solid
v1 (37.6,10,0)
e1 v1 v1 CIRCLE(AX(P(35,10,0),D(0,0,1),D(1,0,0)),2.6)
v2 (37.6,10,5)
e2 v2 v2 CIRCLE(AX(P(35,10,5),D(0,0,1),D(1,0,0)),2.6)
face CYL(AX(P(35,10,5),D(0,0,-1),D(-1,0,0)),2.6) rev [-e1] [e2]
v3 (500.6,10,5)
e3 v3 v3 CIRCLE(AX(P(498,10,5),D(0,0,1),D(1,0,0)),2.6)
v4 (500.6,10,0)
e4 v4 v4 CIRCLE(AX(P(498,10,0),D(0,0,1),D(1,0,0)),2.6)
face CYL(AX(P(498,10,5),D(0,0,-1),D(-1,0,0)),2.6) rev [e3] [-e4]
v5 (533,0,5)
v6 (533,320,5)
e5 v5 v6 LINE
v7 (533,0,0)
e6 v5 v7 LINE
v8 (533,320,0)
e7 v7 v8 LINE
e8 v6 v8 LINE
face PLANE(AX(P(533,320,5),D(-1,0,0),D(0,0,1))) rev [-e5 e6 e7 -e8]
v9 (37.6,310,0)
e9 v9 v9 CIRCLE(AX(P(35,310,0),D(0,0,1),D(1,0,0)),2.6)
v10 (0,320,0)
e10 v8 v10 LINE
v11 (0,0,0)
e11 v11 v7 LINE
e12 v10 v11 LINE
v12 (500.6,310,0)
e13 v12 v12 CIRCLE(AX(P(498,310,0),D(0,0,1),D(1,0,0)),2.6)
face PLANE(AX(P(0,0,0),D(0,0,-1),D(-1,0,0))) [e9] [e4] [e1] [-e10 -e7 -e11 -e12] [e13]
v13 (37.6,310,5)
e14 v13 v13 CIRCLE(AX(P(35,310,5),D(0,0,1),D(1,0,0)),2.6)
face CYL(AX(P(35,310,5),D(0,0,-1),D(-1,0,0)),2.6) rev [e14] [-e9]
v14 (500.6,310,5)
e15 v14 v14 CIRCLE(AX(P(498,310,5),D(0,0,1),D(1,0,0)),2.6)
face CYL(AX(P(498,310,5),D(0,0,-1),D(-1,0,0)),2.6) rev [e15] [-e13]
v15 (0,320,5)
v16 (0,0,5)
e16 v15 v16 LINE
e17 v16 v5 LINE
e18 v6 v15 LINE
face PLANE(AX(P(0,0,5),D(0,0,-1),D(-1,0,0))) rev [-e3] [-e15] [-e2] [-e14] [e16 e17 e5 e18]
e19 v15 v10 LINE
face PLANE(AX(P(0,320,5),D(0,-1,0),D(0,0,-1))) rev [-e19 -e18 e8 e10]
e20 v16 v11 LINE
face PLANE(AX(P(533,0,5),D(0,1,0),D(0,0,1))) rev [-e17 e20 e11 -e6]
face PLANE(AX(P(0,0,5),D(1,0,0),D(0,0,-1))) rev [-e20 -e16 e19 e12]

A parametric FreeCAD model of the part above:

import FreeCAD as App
import Part
import Sketcher
Q = App.Units.Quantity

doc = App.newDocument("Part")
params = doc.addObject("Spreadsheet::Sheet", "Params")
for row, (alias, value) in enumerate([
    ("sketch1_diameter", "5.2 mm"),
    ("sketch1_width", "533 mm"),
    ("sketch1_height", "320 mm"),
    ("pad1_length", "5 mm"),
], start=1):
    params.set(f"A{row}", alias)
    params.set(f"B{row}", "=" + value)
    params.setAlias(f"B{row}", alias)

body = doc.addObject("PartDesign::Body", "Body")

# Sketch on XY plane
sketch1 = body.newObject("Sketcher::SketchObject", "Sketch")
sketch1.AttachmentSupport = (doc.getObject("XY_Plane"), [""])
sketch1.MapMode = "FlatFace"
sketch1.addGeometry([
    Part.LineSegment(App.Vector(0, 320, 0), App.Vector(0, 0, 0)),  # 0
    Part.LineSegment(App.Vector(0, 0, 0), App.Vector(533, 0, 0)),  # 1
    Part.LineSegment(App.Vector(533, 0, 0), App.Vector(533, 320, 0)),  # 2
    Part.LineSegment(App.Vector(533, 320, 0), App.Vector(0, 320, 0)),  # 3
    Part.Circle(App.Vector(35, 10, 0), App.Vector(0, 0, 1), 2.6),  # 4
    Part.Circle(App.Vector(498, 10, 0), App.Vector(0, 0, 1), 2.6),  # 5
    Part.Circle(App.Vector(35, 310, 0), App.Vector(0, 0, 1), 2.6),  # 6
    Part.Circle(App.Vector(498, 310, 0), App.Vector(0, 0, 1), 2.6),  # 7
], False)
sketch1.addConstraint([
    Sketcher.Constraint("Coincident", 0, 2, 1, 1),
    Sketcher.Constraint("Coincident", 1, 2, 2, 1),
    Sketcher.Constraint("Coincident", 2, 2, 3, 1),
    Sketcher.Constraint("Coincident", 3, 2, 0, 1),
    Sketcher.Constraint("Vertical", 0),
    Sketcher.Constraint("Horizontal", 1),
    Sketcher.Constraint("Vertical", 2),
    Sketcher.Constraint("Horizontal", 3),
    Sketcher.Constraint("Coincident", 0, 2, -1, 1),
    Sketcher.Constraint("Equal", 4, 5),
    Sketcher.Constraint("Equal", 5, 6),
    Sketcher.Constraint("Equal", 6, 7),
    Sketcher.Constraint("Horizontal", 4, 3, 5, 3),
    Sketcher.Constraint("Horizontal", 6, 3, 7, 3),
    Sketcher.Constraint("Vertical", 4, 3, 6, 3),
    Sketcher.Constraint("Vertical", 5, 3, 7, 3),
    Sketcher.Constraint("Diameter", 4, Q("5.2 mm")),
    Sketcher.Constraint("DistanceX", 1, 1, 1, 2, Q("533 mm")),
    Sketcher.Constraint("DistanceY", 0, 2, 0, 1, Q("320 mm")),
    Sketcher.Constraint("DistanceX", -1, 1, 4, 3, Q("35 mm")),
    Sketcher.Constraint("DistanceY", -1, 1, 4, 3, Q("10 mm")),
    Sketcher.Constraint("DistanceX", -1, 1, 5, 3, Q("498 mm")),
    Sketcher.Constraint("DistanceY", -1, 1, 6, 3, Q("310 mm")),
])
sketch1.setExpression("Constraints[16]", "Params.sketch1_diameter")
sketch1.setExpression("Constraints[17]", "Params.sketch1_width")
sketch1.setExpression("Constraints[18]", "Params.sketch1_height")
pad1 = body.newObject("PartDesign::Pad", "Pad")
pad1.Profile = sketch1
pad1.setExpression("Length", "Params.pad1_length")

doc.recompute()
